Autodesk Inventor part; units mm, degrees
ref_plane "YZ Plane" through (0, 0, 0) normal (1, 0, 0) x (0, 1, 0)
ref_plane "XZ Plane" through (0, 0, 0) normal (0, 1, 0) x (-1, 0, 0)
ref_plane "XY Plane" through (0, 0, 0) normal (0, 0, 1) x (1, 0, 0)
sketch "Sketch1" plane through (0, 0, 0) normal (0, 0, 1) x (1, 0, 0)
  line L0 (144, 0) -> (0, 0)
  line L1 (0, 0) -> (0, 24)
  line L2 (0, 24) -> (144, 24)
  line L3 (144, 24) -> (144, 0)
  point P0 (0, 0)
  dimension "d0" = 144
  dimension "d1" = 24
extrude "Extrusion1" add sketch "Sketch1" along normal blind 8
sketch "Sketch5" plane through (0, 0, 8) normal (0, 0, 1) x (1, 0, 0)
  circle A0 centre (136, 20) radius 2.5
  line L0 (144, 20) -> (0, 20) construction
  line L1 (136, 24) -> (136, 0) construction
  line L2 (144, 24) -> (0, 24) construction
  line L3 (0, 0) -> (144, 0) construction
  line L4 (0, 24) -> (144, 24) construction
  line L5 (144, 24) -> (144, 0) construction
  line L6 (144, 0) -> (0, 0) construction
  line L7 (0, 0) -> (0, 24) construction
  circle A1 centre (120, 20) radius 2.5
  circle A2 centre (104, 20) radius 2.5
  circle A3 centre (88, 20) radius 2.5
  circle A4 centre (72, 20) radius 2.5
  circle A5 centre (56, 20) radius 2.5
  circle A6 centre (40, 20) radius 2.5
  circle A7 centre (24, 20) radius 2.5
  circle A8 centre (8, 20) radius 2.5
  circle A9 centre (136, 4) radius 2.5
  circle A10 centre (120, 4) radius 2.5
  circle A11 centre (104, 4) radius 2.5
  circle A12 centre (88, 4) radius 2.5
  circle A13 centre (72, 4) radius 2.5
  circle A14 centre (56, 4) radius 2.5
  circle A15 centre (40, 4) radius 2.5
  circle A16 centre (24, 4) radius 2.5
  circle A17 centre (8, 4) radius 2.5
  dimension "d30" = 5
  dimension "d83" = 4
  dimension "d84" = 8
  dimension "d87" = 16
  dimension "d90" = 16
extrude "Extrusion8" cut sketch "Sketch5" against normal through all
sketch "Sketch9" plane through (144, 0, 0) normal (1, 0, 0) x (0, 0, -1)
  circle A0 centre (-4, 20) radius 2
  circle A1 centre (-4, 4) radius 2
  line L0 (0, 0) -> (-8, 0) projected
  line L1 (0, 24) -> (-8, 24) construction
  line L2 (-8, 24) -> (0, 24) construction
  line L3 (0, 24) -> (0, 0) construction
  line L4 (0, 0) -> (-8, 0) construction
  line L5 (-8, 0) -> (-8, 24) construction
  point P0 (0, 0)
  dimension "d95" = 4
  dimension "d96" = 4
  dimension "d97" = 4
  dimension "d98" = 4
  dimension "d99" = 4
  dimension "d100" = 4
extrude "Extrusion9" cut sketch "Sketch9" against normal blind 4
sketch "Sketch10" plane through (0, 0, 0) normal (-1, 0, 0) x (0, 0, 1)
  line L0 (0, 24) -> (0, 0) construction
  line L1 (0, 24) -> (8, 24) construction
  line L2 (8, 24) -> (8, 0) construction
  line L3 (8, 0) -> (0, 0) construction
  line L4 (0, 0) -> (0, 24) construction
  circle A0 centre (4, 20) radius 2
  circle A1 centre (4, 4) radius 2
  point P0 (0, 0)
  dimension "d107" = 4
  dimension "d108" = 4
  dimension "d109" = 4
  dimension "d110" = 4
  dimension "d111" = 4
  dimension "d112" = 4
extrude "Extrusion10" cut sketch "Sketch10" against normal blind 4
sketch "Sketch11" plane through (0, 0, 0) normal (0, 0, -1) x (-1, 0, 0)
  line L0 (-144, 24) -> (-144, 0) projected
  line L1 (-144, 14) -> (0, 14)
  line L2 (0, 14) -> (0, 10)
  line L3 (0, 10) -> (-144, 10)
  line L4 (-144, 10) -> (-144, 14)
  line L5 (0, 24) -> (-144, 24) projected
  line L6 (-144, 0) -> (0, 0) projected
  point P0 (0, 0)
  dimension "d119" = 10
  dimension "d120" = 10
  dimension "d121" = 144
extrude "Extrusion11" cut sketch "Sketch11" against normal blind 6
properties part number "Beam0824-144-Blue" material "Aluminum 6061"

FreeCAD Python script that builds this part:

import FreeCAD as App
import Part
import Sketcher
from FreeCAD import Vector


def add_polygon(sketch, points):
    """Adds a closed chain of lines whose ends are joined by coincident constraints."""
    first, n = sketch.GeometryCount, len(points)
    for a, b in zip(points, points[1:] + points[:1]):
        sketch.addGeometry(Part.LineSegment(App.Vector(*a, 0), App.Vector(*b, 0)), False)
    for i in range(n):
        sketch.addConstraint(Sketcher.Constraint("Coincident", first + i, 2, first + (i + 1) % n, 1))

doc = App.newDocument("Part")
body = doc.addObject("PartDesign::Body", "Body")

# Sketch on XY plane
sketch1 = doc.addObject("Sketcher::SketchObject", "Sketch")
body.addObject(sketch1)
sketch1.AttachmentSupport = (doc.XY_Plane, [""])
sketch1.MapMode = "FlatFace"
add_polygon(sketch1, [(0, 0), (144, 0), (144, 24), (0, 24)])  # lines 0-3
sketch1.addConstraint(Sketcher.Constraint("Horizontal", 0))
sketch1.addConstraint(Sketcher.Constraint("Vertical", 1))
sketch1.addConstraint(Sketcher.Constraint("Horizontal", 2))
sketch1.addConstraint(Sketcher.Constraint("Vertical", 3))
sketch1.addConstraint(Sketcher.Constraint("Coincident", 3, 2, -1, 1))
sketch1.addConstraint(Sketcher.Constraint("DistanceX", 0, 1, 0, 2, 144.0))
sketch1.addConstraint(Sketcher.Constraint("DistanceY", 1, 1, 1, 2, 24.0))
pad1 = doc.addObject("PartDesign::Pad", "Pad")
body.addObject(pad1)
pad1.Profile = sketch1
pad1.Length = 8

# Sketch on XY plane
sketch2 = doc.addObject("Sketcher::SketchObject", "Sketch001")
body.addObject(sketch2)
sketch2.AttachmentSupport = (doc.XY_Plane, [""])
sketch2.MapMode = "FlatFace"
sketch2.AttachmentOffset = App.Placement(Vector(0, 0, 8), App.Rotation())
sketch2.addGeometry(Part.Circle(Vector(136, 20, 0), Vector(0, 0, 1), 2.5), False)
sketch2.addGeometry(Part.Circle(Vector(120, 20, 0), Vector(0, 0, 1), 2.5), False)
sketch2.addGeometry(Part.Circle(Vector(104, 20, 0), Vector(0, 0, 1), 2.5), False)
sketch2.addGeometry(Part.Circle(Vector(88, 20, 0), Vector(0, 0, 1), 2.5), False)
sketch2.addGeometry(Part.Circle(Vector(72, 20, 0), Vector(0, 0, 1), 2.5), False)
sketch2.addGeometry(Part.Circle(Vector(56, 20, 0), Vector(0, 0, 1), 2.5), False)
sketch2.addGeometry(Part.Circle(Vector(40, 20, 0), Vector(0, 0, 1), 2.5), False)
sketch2.addGeometry(Part.Circle(Vector(24, 20, 0), Vector(0, 0, 1), 2.5), False)
sketch2.addGeometry(Part.Circle(Vector(8, 20, 0), Vector(0, 0, 1), 2.5), False)
sketch2.addGeometry(Part.Circle(Vector(136, 4, 0), Vector(0, 0, 1), 2.5), False)
sketch2.addGeometry(Part.Circle(Vector(120, 4, 0), Vector(0, 0, 1), 2.5), False)
sketch2.addGeometry(Part.Circle(Vector(104, 4, 0), Vector(0, 0, 1), 2.5), False)
sketch2.addGeometry(Part.Circle(Vector(88, 4, 0), Vector(0, 0, 1), 2.5), False)
sketch2.addGeometry(Part.Circle(Vector(72, 4, 0), Vector(0, 0, 1), 2.5), False)
sketch2.addGeometry(Part.Circle(Vector(56, 4, 0), Vector(0, 0, 1), 2.5), False)
sketch2.addGeometry(Part.Circle(Vector(40, 4, 0), Vector(0, 0, 1), 2.5), False)
sketch2.addGeometry(Part.Circle(Vector(24, 4, 0), Vector(0, 0, 1), 2.5), False)
sketch2.addGeometry(Part.Circle(Vector(8, 4, 0), Vector(0, 0, 1), 2.5), False)
sketch2.addConstraint(Sketcher.Constraint("Equal", 0, 1))
sketch2.addConstraint(Sketcher.Constraint("Equal", 1, 2))
sketch2.addConstraint(Sketcher.Constraint("Equal", 2, 3))
sketch2.addConstraint(Sketcher.Constraint("Equal", 3, 4))
sketch2.addConstraint(Sketcher.Constraint("Equal", 4, 5))
sketch2.addConstraint(Sketcher.Constraint("Equal", 5, 6))
sketch2.addConstraint(Sketcher.Constraint("Equal", 6, 7))
sketch2.addConstraint(Sketcher.Constraint("Equal", 7, 8))
sketch2.addConstraint(Sketcher.Constraint("Equal", 8, 9))
sketch2.addConstraint(Sketcher.Constraint("Equal", 9, 10))
sketch2.addConstraint(Sketcher.Constraint("Equal", 10, 11))
sketch2.addConstraint(Sketcher.Constraint("Equal", 11, 12))
sketch2.addConstraint(Sketcher.Constraint("Equal", 12, 13))
sketch2.addConstraint(Sketcher.Constraint("Equal", 13, 14))
sketch2.addConstraint(Sketcher.Constraint("Equal", 14, 15))
sketch2.addConstraint(Sketcher.Constraint("Equal", 15, 16))
sketch2.addConstraint(Sketcher.Constraint("Equal", 16, 17))
sketch2.addConstraint(Sketcher.Constraint("Horizontal", 0, 3, 1, 3))
sketch2.addConstraint(Sketcher.Constraint("Horizontal", 1, 3, 2, 3))
sketch2.addConstraint(Sketcher.Constraint("Horizontal", 2, 3, 3, 3))
sketch2.addConstraint(Sketcher.Constraint("Horizontal", 3, 3, 4, 3))
sketch2.addConstraint(Sketcher.Constraint("Horizontal", 4, 3, 5, 3))
sketch2.addConstraint(Sketcher.Constraint("Horizontal", 5, 3, 6, 3))
sketch2.addConstraint(Sketcher.Constraint("Horizontal", 6, 3, 7, 3))
sketch2.addConstraint(Sketcher.Constraint("Horizontal", 7, 3, 8, 3))
sketch2.addConstraint(Sketcher.Constraint("Horizontal", 9, 3, 10, 3))
sketch2.addConstraint(Sketcher.Constraint("Horizontal", 10, 3, 11, 3))
sketch2.addConstraint(Sketcher.Constraint("Horizontal", 11, 3, 12, 3))
sketch2.addConstraint(Sketcher.Constraint("Horizontal", 12, 3, 13, 3))
sketch2.addConstraint(Sketcher.Constraint("Horizontal", 13, 3, 14, 3))
sketch2.addConstraint(Sketcher.Constraint("Horizontal", 14, 3, 15, 3))
sketch2.addConstraint(Sketcher.Constraint("Horizontal", 15, 3, 16, 3))
sketch2.addConstraint(Sketcher.Constraint("Horizontal", 16, 3, 17, 3))
sketch2.addConstraint(Sketcher.Constraint("Vertical", 0, 3, 9, 3))
sketch2.addConstraint(Sketcher.Constraint("Vertical", 1, 3, 10, 3))
sketch2.addConstraint(Sketcher.Constraint("Vertical", 2, 3, 11, 3))
sketch2.addConstraint(Sketcher.Constraint("Vertical", 3, 3, 12, 3))
sketch2.addConstraint(Sketcher.Constraint("Vertical", 4, 3, 13, 3))
sketch2.addConstraint(Sketcher.Constraint("Vertical", 5, 3, 14, 3))
sketch2.addConstraint(Sketcher.Constraint("Vertical", 6, 3, 15, 3))
sketch2.addConstraint(Sketcher.Constraint("Vertical", 7, 3, 16, 3))
sketch2.addConstraint(Sketcher.Constraint("Vertical", 8, 3, 17, 3))
sketch2.addConstraint(Sketcher.Constraint("Diameter", 0, 5.0))
sketch2.addConstraint(Sketcher.Constraint("DistanceX", -1, 1, 8, 3, 8.0))
sketch2.addConstraint(Sketcher.Constraint("DistanceY", -1, 1, 9, 3, 4.0))
sketch2.addConstraint(Sketcher.Constraint("DistanceX", 1, 3, 0, 3, 16.0))
sketch2.addConstraint(Sketcher.Constraint("DistanceX", 2, 3, 1, 3, 16.0))
sketch2.addConstraint(Sketcher.Constraint("DistanceX", 3, 3, 2, 3, 16.0))
sketch2.addConstraint(Sketcher.Constraint("DistanceX", 4, 3, 3, 3, 16.0))
sketch2.addConstraint(Sketcher.Constraint("DistanceX", 5, 3, 4, 3, 16.0))
sketch2.addConstraint(Sketcher.Constraint("DistanceX", 6, 3, 5, 3, 16.0))
sketch2.addConstraint(Sketcher.Constraint("DistanceX", 7, 3, 6, 3, 16.0))
sketch2.addConstraint(Sketcher.Constraint("DistanceX", 8, 3, 7, 3, 16.0))
sketch2.addConstraint(Sketcher.Constraint("DistanceY", 9, 3, 0, 3, 16.0))
pocket1 = doc.addObject("PartDesign::Pocket", "Pocket")
body.addObject(pocket1)
pocket1.Profile = sketch2
pocket1.Type = "ThroughAll"

# Sketch on YZ plane
sketch3 = doc.addObject("Sketcher::SketchObject", "Sketch002")
body.addObject(sketch3)
sketch3.AttachmentSupport = (doc.YZ_Plane, [""])
sketch3.MapMode = "FlatFace"
sketch3.AttachmentOffset = App.Placement(Vector(0, 0, 144), App.Rotation())
sketch3.addGeometry(Part.Circle(Vector(20, 4, 0), Vector(0, 0, 1), 2), False)
sketch3.addGeometry(Part.Circle(Vector(4, 4, 0), Vector(0, 0, 1), 2), False)
sketch3.addConstraint(Sketcher.Constraint("Equal", 0, 1))
sketch3.addConstraint(Sketcher.Constraint("Horizontal", 0, 3, 1, 3))
sketch3.addConstraint(Sketcher.Constraint("Diameter", 0, 4.0))
sketch3.addConstraint(Sketcher.Constraint("DistanceY", -1, 1, 0, 3, 4.0))
sketch3.addConstraint(Sketcher.Constraint("DistanceX", -1, 1, 1, 3, 4.0))
sketch3.addConstraint(Sketcher.Constraint("DistanceX", -1, 1, 0, 3, 20.0))
pocket2 = doc.addObject("PartDesign::Pocket", "Pocket001")
body.addObject(pocket2)
pocket2.Profile = sketch3
pocket2.Length = 4

# Sketch on YZ plane
sketch4 = doc.addObject("Sketcher::SketchObject", "Sketch003")
body.addObject(sketch4)
sketch4.AttachmentSupport = (doc.YZ_Plane, [""])
sketch4.MapMode = "FlatFace"
sketch4.addGeometry(Part.Circle(Vector(20, 4, 0), Vector(0, 0, 1), 2), False)
sketch4.addGeometry(Part.Circle(Vector(4, 4, 0), Vector(0, 0, 1), 2), False)
sketch4.addConstraint(Sketcher.Constraint("Equal", 0, 1))
sketch4.addConstraint(Sketcher.Constraint("Horizontal", 0, 3, 1, 3))
sketch4.addConstraint(Sketcher.Constraint("Diameter", 0, 4.0))
sketch4.addConstraint(Sketcher.Constraint("DistanceY", -1, 1, 0, 3, 4.0))
sketch4.addConstraint(Sketcher.Constraint("DistanceX", -1, 1, 1, 3, 4.0))
sketch4.addConstraint(Sketcher.Constraint("DistanceX", -1, 1, 0, 3, 20.0))
pocket3 = doc.addObject("PartDesign::Pocket", "Pocket002")
body.addObject(pocket3)
pocket3.Profile = sketch4
pocket3.Length = 4
pocket3.Reversed = True

# Sketch on XY plane
sketch5 = doc.addObject("Sketcher::SketchObject", "Sketch004")
body.addObject(sketch5)
sketch5.AttachmentSupport = (doc.XY_Plane, [""])
sketch5.MapMode = "FlatFace"
add_polygon(sketch5, [(0, 14), (144, 14), (144, 10), (0, 10)])  # lines 0-3
sketch5.addConstraint(Sketcher.Constraint("Horizontal", 0))
sketch5.addConstraint(Sketcher.Constraint("Vertical", 1))
sketch5.addConstraint(Sketcher.Constraint("Horizontal", 2))
sketch5.addConstraint(Sketcher.Constraint("Vertical", 3))
sketch5.addConstraint(Sketcher.Constraint("PointOnObject", 2, 2, -2))
sketch5.addConstraint(Sketcher.Constraint("DistanceX", 0, 1, 0, 2, 144.0))
sketch5.addConstraint(Sketcher.Constraint("DistanceY", -1, 1, 1, 2, 10.0))
sketch5.addConstraint(Sketcher.Constraint("DistanceY", 1, 2, 1, 1, 4.0))
pocket4 = doc.addObject("PartDesign::Pocket", "Pocket003")
body.addObject(pocket4)
pocket4.Profile = sketch5
pocket4.Length = 6
pocket4.Reversed = True

doc.recompute()
